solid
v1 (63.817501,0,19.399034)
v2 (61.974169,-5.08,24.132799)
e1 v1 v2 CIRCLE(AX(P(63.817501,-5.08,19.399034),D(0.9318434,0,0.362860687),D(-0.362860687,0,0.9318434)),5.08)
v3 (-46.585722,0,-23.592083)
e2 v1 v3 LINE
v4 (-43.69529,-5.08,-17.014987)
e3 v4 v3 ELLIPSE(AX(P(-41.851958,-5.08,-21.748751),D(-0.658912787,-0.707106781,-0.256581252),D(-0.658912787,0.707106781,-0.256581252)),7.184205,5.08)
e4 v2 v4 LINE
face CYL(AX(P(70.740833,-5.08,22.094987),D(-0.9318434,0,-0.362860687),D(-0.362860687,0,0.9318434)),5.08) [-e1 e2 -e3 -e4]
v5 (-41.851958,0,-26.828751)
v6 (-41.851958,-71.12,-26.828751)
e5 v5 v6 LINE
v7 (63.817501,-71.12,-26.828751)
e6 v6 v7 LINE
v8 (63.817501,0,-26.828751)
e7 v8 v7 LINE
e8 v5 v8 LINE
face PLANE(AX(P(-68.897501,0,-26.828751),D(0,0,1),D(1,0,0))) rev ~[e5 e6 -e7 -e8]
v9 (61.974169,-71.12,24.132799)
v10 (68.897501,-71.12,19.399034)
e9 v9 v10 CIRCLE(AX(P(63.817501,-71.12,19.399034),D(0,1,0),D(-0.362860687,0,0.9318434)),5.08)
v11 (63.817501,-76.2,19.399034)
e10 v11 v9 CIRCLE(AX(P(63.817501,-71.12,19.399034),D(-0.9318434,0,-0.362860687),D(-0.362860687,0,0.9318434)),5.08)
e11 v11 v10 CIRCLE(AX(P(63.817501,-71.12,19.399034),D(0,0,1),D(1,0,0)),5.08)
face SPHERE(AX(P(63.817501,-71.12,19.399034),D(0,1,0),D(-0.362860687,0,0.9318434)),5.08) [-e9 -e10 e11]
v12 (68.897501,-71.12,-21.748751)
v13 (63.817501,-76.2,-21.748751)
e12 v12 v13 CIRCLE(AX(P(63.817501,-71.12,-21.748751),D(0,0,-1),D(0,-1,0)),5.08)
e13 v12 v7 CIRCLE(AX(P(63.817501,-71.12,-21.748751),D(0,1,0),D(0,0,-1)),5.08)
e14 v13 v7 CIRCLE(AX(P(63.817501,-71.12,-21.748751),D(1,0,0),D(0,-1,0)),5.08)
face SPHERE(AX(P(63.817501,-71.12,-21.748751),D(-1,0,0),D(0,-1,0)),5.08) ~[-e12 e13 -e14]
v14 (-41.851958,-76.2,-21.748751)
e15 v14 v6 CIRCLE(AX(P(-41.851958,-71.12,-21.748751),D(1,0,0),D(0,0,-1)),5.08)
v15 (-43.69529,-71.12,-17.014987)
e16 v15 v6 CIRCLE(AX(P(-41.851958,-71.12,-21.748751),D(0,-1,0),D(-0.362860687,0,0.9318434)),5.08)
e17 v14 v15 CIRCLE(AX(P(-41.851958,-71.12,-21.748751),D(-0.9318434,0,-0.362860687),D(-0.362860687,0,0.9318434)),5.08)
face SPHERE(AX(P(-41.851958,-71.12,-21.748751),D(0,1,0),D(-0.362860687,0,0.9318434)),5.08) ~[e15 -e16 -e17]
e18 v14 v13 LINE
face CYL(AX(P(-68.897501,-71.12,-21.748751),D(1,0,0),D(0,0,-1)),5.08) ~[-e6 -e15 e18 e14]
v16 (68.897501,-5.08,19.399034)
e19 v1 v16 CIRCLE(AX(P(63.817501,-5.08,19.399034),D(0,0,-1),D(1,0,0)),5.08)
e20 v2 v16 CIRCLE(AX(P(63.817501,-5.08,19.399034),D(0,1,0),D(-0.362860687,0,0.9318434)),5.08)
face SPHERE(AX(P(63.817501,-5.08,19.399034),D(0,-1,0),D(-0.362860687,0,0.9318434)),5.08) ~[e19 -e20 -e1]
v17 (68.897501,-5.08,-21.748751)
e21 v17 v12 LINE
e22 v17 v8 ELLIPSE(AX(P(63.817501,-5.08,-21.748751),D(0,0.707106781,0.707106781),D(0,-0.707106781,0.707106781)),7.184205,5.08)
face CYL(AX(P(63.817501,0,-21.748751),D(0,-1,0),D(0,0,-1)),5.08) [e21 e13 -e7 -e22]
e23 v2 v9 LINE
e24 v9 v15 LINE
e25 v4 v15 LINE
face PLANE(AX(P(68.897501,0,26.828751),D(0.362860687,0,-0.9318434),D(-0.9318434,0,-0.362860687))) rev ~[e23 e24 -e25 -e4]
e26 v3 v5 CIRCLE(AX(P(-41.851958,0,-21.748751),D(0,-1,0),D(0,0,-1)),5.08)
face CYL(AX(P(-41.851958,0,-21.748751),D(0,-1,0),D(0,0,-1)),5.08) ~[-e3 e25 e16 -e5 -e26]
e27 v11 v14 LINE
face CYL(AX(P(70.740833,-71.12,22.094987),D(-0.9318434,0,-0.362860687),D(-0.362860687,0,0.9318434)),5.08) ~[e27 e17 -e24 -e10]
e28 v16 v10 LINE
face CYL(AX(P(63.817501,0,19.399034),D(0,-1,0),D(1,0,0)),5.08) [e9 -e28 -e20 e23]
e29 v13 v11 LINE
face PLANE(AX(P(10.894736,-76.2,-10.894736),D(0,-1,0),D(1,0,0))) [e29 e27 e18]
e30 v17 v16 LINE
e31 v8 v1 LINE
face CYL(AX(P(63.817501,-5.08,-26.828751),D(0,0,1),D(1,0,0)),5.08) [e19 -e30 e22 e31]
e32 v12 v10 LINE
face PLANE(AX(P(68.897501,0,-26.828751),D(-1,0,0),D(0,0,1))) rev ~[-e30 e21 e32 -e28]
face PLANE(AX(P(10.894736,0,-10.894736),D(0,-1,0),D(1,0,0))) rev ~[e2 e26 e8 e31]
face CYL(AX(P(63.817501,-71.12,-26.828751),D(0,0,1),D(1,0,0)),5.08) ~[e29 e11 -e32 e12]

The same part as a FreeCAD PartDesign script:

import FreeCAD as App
import Part
import Sketcher

V = App.Vector
Q = App.Units.Quantity


def edges_at(feature, points):
    """Names of the edges that pass closest to the given points."""
    edges = feature.Shape.Edges
    near = lambda p: min(range(len(edges)), key=lambda i: edges[i].distToShape(Part.Vertex(*p))[0])
    return sorted({f"Edge{near(p) + 1}" for p in points})

doc = App.newDocument("Part")
body = doc.addObject("PartDesign::Body", "Body")

sketch1 = doc.addObject("Sketcher::SketchObject", "Sketch")
body.addObject(sketch1)
sketch1.AttachmentSupport = (doc.XZ_Plane, [""])
sketch1.MapMode = "FlatFace"
sketch1.addGeometry([
    Part.LineSegment(V(-69, -27, 0), V(69, -27, 0)),
    Part.LineSegment(V(69, -27, 0), V(69, 27, 0)),
    Part.LineSegment(V(69, 27, 0), V(-69, -27, 0)),
], False)
sketch1.addConstraint([
    Sketcher.Constraint("Coincident", 0, 2, 1, 1),
    Sketcher.Constraint("Coincident", 1, 2, 2, 1),
    Sketcher.Constraint("Coincident", 2, 2, 0, 1),
    Sketcher.Constraint("Horizontal", 0),
    Sketcher.Constraint("Vertical", 1),
    Sketcher.Constraint("Symmetric", 1, 2, 2, 2, -1, 1),
    Sketcher.Constraint("DistanceX", 0, 1, 0, 2, Q("5.4250001 in")),
    Sketcher.Constraint("DistanceY", 1, 1, 1, 2, Q("2.1125001 in")),
])
pad1 = doc.addObject("PartDesign::Pad", "Pad")
body.addObject(pad1)
pad1.Profile = sketch1
pad1.Length = Q("3 in")
doc.recompute()

fillet = doc.addObject("PartDesign::Fillet", "Fillet")
body.addObject(fillet)
fillet.Base = (pad1, edges_at(pad1, [
    (0, -76.2, 0),
    (0, 0, 0),
    (0, -76.2, -26.829),
    (-68.898, -38.1, -26.829),
    (68.898, -76.2, 0),
    (68.898, 0, 0),
    (68.898, -38.1, -26.829),
    (68.898, -38.1, 26.829),
]))
fillet.Radius = Q("0.2 in")

doc.recompute()
